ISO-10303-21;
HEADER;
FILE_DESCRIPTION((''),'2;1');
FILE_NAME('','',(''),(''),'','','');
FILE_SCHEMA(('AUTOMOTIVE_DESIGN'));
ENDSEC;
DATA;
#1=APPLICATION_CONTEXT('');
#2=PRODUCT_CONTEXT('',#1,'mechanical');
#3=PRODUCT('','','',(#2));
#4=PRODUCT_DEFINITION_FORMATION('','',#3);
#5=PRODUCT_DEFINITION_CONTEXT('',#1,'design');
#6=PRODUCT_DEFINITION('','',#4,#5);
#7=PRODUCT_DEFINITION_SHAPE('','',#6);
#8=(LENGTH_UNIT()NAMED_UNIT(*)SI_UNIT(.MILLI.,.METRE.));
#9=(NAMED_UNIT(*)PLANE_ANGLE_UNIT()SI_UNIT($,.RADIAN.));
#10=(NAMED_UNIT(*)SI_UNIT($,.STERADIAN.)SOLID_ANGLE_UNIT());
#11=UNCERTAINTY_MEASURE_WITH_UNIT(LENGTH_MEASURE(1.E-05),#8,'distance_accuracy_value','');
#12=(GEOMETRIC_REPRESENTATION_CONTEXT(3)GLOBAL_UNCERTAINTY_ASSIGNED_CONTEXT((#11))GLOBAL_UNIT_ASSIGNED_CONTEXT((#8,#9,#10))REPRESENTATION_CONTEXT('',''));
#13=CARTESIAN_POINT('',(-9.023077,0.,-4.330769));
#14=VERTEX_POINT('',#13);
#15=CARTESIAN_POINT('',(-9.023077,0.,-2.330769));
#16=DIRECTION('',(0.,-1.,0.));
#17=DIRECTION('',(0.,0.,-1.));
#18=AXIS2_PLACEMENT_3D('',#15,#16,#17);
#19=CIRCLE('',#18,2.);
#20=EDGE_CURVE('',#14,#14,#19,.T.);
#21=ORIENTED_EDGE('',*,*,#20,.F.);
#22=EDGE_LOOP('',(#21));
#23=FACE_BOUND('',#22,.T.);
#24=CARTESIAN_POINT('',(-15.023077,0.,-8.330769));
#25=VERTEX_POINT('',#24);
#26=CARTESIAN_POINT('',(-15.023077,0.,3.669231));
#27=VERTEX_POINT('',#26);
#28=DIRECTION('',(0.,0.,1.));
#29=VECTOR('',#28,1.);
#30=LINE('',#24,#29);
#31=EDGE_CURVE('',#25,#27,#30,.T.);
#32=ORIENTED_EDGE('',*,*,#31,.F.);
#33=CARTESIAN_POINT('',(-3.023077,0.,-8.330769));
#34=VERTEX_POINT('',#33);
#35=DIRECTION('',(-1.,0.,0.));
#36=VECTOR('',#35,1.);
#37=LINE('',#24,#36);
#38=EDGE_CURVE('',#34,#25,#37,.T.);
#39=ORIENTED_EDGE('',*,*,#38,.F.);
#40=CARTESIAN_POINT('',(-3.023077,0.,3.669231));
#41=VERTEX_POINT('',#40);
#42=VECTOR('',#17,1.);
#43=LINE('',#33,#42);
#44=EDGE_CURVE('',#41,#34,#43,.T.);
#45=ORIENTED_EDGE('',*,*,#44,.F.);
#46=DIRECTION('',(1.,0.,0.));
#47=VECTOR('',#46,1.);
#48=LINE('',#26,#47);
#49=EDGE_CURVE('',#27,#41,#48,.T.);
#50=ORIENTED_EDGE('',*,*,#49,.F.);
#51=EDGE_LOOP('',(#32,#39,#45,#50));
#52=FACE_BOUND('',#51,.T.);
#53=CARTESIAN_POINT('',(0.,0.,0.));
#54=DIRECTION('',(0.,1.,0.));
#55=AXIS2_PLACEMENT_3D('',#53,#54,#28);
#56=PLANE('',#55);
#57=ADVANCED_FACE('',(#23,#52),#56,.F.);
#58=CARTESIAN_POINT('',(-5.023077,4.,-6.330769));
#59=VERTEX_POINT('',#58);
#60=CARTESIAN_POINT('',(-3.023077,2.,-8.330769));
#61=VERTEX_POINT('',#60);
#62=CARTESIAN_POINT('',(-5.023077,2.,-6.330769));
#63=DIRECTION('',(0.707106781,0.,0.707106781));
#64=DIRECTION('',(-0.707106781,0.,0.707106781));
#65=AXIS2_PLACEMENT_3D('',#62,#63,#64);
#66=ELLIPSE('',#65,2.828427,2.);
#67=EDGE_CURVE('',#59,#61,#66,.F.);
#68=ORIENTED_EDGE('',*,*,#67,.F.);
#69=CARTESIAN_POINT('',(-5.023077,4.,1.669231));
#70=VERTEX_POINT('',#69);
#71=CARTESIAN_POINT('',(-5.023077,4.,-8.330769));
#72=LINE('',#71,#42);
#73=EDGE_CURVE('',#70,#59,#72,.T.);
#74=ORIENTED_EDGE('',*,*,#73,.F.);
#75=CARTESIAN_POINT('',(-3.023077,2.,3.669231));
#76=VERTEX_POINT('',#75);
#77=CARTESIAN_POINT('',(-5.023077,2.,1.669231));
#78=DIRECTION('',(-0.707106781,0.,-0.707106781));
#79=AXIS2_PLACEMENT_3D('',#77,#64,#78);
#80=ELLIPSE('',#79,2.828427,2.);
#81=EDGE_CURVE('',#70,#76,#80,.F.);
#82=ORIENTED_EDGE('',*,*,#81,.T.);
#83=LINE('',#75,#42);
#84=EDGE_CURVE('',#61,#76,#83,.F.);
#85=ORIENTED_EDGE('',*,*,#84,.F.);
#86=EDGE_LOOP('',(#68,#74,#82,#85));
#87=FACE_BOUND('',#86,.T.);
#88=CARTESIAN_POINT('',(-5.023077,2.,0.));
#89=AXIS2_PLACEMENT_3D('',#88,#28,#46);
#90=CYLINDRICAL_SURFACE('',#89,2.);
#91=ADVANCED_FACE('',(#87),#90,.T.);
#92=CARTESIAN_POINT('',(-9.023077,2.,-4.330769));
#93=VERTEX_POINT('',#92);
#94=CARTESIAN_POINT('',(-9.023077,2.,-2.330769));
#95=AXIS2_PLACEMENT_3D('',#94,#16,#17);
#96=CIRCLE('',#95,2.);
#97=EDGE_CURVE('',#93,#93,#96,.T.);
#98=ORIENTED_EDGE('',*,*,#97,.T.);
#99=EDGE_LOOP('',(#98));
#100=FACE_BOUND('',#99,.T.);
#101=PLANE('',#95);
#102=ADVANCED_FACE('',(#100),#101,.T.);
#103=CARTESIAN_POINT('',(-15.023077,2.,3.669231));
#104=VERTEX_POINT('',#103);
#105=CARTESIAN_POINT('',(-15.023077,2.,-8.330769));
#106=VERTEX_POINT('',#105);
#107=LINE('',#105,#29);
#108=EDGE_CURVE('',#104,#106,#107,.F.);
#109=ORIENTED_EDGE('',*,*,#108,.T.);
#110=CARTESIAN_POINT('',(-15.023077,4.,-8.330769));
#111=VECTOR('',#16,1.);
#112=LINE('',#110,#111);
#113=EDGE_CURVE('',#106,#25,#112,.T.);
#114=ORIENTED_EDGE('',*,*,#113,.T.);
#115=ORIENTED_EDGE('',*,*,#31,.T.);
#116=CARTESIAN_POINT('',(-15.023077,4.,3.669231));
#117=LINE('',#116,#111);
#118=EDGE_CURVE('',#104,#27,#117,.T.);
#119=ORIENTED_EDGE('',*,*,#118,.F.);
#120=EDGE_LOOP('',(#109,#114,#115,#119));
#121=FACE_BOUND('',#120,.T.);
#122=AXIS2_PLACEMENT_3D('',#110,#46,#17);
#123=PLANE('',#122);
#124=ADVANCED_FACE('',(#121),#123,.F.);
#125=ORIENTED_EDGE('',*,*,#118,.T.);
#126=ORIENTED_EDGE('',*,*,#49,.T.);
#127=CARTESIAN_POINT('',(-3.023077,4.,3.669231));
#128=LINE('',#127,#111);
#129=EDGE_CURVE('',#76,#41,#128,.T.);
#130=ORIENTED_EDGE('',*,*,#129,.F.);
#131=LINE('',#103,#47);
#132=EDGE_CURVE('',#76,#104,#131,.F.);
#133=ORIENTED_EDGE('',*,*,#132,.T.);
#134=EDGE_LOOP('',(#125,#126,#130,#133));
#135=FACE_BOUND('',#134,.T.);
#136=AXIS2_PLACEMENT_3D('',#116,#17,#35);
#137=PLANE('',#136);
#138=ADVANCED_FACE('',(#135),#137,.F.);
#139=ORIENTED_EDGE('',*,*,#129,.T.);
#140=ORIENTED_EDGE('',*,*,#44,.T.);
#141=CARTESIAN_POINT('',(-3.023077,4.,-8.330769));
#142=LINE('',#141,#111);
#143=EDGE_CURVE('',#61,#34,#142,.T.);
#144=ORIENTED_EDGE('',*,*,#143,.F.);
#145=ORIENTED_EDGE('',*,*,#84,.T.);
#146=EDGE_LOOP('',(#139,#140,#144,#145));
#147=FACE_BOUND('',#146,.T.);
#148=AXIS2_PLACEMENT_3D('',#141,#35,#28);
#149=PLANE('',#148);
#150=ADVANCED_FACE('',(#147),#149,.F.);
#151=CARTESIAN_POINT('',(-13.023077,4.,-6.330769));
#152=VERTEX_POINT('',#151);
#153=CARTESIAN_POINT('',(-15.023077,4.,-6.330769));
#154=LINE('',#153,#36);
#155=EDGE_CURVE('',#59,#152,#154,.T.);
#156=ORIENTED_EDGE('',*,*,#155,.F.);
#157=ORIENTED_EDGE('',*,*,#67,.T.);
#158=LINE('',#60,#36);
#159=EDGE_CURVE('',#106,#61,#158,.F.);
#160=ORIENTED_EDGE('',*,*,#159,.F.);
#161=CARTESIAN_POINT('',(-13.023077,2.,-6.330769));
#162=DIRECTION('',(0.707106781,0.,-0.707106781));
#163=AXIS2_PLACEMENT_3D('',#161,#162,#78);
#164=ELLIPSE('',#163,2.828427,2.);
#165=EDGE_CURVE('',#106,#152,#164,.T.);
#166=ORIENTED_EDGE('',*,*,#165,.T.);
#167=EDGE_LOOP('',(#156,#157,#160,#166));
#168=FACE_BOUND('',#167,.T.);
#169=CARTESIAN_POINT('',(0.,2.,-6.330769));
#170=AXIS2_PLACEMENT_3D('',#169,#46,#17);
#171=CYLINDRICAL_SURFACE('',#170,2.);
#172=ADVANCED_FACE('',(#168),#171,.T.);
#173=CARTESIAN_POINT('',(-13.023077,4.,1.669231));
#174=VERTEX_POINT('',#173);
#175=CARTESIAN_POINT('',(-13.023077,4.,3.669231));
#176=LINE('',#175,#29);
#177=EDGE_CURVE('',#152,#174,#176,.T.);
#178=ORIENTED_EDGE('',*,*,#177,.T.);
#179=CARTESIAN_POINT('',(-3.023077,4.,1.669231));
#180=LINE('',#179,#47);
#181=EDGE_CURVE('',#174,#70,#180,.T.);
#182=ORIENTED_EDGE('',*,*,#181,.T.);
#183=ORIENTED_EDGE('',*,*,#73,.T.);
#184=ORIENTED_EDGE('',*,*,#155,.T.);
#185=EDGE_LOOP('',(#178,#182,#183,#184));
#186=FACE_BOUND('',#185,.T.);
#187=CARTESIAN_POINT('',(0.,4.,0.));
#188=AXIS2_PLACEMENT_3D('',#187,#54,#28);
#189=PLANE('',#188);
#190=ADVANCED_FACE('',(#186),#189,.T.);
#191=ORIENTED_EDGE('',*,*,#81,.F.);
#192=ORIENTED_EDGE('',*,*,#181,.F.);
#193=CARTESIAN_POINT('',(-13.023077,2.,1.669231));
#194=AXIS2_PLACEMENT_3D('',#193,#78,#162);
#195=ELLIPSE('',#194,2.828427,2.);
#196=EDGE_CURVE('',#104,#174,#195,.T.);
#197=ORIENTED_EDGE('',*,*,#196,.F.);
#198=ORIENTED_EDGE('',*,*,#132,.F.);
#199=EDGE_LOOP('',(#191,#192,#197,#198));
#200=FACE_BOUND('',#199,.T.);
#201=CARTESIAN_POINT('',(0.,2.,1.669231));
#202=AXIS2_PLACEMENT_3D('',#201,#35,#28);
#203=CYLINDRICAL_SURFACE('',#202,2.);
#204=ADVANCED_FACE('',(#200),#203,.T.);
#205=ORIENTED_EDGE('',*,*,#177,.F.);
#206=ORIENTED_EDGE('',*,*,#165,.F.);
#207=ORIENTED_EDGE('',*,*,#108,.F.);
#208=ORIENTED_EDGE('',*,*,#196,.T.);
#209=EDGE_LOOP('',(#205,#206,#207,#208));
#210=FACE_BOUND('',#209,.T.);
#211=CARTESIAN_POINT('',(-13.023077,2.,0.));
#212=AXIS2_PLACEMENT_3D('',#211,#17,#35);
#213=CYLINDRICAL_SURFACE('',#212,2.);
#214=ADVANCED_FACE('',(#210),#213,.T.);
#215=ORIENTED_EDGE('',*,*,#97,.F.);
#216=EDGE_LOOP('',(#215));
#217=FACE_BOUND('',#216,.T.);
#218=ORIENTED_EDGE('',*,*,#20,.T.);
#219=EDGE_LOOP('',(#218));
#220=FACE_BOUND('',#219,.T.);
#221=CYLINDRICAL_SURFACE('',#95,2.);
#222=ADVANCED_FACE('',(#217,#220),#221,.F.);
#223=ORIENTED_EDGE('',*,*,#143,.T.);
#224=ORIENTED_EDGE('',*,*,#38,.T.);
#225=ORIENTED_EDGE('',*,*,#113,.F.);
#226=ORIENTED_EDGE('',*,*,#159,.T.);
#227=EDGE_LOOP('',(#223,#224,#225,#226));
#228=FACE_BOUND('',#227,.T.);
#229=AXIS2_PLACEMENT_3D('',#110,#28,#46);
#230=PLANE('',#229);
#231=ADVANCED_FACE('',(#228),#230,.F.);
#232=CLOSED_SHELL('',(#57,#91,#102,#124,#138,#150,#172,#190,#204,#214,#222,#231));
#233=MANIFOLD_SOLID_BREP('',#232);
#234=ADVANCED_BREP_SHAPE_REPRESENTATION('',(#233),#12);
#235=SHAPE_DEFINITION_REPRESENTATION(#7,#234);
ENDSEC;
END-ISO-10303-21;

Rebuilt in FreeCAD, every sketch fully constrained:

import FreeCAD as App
import Part
import Sketcher


def edges_at(feature, points):
    """Names of the edges that pass closest to the given points."""
    edges = feature.Shape.Edges
    near = lambda p: min(range(len(edges)), key=lambda i: edges[i].distToShape(Part.Vertex(*p))[0])
    return sorted({f"Edge{near(p) + 1}" for p in points})

doc = App.newDocument("Part")
body = doc.addObject("PartDesign::Body", "Body")

# Sketch on XZ plane
sketch1 = body.newObject("Sketcher::SketchObject", "Sketch")
sketch1.AttachmentSupport = (doc.getObject("XZ_Plane"), [""])
sketch1.MapMode = "FlatFace"
sketch1.addGeometry([
    Part.LineSegment(App.Vector(-15.023077, -8.330769, 0), App.Vector(-15.023077, 3.669231, 0)),
    Part.LineSegment(App.Vector(-15.023077, 3.669231, 0), App.Vector(-3.023077, 3.669231, 0)),
    Part.LineSegment(App.Vector(-3.023077, 3.669231, 0), App.Vector(-3.023077, -8.330769, 0)),
    Part.LineSegment(App.Vector(-3.023077, -8.330769, 0), App.Vector(-15.023077, -8.330769, 0)),
], False)
sketch1.addConstraint([
    Sketcher.Constraint("Coincident", 0, 2, 1, 1),
    Sketcher.Constraint("Coincident", 1, 2, 2, 1),
    Sketcher.Constraint("Coincident", 2, 2, 3, 1),
    Sketcher.Constraint("Coincident", 3, 2, 0, 1),
    Sketcher.Constraint("Vertical", 0),
    Sketcher.Constraint("Horizontal", 1),
    Sketcher.Constraint("Vertical", 2),
    Sketcher.Constraint("Horizontal", 3),
    Sketcher.Constraint("Equal", 3, 0),
    Sketcher.Constraint("DistanceX", 1, 1, 1, 2, 12.0),
    Sketcher.Constraint("DistanceY", -1, 1, 0, 2, 3.669231),
    Sketcher.Constraint("DistanceX", 0, 2, -1, 1, 15.023077),
])
pad1 = body.newObject("PartDesign::Pad", "Pad")
pad1.Profile = sketch1
pad1.Length = 4
pad1.Reversed = True

# Sketch on XZ plane
sketch2 = body.newObject("Sketcher::SketchObject", "Sketch001")
sketch2.AttachmentSupport = (doc.getObject("XZ_Plane"), [""])
sketch2.MapMode = "FlatFace"
sketch2.addGeometry(Part.Circle(App.Vector(-9.023077, -2.330769, 0), App.Vector(0, 0, 1), 2), False)
sketch2.addConstraint([
    Sketcher.Constraint("Diameter", 0, 4.0),
    Sketcher.Constraint("DistanceY", 0, 3, -1, 1, 2.330769),
    Sketcher.Constraint("DistanceX", 0, 3, -1, 1, 9.023077),
])
pocket1 = body.newObject("PartDesign::Pocket", "Pocket")
pocket1.Profile = sketch2
pocket1.Length = 2
doc.recompute()

fillet = body.newObject("PartDesign::Fillet", "Fillet")
fillet.Base = (pocket1, edges_at(pocket1, [
    (-15.023, 4, -2.331),
    (-9.023, 4, 3.669),
    (-3.023, 4, -2.331),
    (-9.023, 4, -8.331),
]))
fillet.Radius = 2

doc.recompute()
